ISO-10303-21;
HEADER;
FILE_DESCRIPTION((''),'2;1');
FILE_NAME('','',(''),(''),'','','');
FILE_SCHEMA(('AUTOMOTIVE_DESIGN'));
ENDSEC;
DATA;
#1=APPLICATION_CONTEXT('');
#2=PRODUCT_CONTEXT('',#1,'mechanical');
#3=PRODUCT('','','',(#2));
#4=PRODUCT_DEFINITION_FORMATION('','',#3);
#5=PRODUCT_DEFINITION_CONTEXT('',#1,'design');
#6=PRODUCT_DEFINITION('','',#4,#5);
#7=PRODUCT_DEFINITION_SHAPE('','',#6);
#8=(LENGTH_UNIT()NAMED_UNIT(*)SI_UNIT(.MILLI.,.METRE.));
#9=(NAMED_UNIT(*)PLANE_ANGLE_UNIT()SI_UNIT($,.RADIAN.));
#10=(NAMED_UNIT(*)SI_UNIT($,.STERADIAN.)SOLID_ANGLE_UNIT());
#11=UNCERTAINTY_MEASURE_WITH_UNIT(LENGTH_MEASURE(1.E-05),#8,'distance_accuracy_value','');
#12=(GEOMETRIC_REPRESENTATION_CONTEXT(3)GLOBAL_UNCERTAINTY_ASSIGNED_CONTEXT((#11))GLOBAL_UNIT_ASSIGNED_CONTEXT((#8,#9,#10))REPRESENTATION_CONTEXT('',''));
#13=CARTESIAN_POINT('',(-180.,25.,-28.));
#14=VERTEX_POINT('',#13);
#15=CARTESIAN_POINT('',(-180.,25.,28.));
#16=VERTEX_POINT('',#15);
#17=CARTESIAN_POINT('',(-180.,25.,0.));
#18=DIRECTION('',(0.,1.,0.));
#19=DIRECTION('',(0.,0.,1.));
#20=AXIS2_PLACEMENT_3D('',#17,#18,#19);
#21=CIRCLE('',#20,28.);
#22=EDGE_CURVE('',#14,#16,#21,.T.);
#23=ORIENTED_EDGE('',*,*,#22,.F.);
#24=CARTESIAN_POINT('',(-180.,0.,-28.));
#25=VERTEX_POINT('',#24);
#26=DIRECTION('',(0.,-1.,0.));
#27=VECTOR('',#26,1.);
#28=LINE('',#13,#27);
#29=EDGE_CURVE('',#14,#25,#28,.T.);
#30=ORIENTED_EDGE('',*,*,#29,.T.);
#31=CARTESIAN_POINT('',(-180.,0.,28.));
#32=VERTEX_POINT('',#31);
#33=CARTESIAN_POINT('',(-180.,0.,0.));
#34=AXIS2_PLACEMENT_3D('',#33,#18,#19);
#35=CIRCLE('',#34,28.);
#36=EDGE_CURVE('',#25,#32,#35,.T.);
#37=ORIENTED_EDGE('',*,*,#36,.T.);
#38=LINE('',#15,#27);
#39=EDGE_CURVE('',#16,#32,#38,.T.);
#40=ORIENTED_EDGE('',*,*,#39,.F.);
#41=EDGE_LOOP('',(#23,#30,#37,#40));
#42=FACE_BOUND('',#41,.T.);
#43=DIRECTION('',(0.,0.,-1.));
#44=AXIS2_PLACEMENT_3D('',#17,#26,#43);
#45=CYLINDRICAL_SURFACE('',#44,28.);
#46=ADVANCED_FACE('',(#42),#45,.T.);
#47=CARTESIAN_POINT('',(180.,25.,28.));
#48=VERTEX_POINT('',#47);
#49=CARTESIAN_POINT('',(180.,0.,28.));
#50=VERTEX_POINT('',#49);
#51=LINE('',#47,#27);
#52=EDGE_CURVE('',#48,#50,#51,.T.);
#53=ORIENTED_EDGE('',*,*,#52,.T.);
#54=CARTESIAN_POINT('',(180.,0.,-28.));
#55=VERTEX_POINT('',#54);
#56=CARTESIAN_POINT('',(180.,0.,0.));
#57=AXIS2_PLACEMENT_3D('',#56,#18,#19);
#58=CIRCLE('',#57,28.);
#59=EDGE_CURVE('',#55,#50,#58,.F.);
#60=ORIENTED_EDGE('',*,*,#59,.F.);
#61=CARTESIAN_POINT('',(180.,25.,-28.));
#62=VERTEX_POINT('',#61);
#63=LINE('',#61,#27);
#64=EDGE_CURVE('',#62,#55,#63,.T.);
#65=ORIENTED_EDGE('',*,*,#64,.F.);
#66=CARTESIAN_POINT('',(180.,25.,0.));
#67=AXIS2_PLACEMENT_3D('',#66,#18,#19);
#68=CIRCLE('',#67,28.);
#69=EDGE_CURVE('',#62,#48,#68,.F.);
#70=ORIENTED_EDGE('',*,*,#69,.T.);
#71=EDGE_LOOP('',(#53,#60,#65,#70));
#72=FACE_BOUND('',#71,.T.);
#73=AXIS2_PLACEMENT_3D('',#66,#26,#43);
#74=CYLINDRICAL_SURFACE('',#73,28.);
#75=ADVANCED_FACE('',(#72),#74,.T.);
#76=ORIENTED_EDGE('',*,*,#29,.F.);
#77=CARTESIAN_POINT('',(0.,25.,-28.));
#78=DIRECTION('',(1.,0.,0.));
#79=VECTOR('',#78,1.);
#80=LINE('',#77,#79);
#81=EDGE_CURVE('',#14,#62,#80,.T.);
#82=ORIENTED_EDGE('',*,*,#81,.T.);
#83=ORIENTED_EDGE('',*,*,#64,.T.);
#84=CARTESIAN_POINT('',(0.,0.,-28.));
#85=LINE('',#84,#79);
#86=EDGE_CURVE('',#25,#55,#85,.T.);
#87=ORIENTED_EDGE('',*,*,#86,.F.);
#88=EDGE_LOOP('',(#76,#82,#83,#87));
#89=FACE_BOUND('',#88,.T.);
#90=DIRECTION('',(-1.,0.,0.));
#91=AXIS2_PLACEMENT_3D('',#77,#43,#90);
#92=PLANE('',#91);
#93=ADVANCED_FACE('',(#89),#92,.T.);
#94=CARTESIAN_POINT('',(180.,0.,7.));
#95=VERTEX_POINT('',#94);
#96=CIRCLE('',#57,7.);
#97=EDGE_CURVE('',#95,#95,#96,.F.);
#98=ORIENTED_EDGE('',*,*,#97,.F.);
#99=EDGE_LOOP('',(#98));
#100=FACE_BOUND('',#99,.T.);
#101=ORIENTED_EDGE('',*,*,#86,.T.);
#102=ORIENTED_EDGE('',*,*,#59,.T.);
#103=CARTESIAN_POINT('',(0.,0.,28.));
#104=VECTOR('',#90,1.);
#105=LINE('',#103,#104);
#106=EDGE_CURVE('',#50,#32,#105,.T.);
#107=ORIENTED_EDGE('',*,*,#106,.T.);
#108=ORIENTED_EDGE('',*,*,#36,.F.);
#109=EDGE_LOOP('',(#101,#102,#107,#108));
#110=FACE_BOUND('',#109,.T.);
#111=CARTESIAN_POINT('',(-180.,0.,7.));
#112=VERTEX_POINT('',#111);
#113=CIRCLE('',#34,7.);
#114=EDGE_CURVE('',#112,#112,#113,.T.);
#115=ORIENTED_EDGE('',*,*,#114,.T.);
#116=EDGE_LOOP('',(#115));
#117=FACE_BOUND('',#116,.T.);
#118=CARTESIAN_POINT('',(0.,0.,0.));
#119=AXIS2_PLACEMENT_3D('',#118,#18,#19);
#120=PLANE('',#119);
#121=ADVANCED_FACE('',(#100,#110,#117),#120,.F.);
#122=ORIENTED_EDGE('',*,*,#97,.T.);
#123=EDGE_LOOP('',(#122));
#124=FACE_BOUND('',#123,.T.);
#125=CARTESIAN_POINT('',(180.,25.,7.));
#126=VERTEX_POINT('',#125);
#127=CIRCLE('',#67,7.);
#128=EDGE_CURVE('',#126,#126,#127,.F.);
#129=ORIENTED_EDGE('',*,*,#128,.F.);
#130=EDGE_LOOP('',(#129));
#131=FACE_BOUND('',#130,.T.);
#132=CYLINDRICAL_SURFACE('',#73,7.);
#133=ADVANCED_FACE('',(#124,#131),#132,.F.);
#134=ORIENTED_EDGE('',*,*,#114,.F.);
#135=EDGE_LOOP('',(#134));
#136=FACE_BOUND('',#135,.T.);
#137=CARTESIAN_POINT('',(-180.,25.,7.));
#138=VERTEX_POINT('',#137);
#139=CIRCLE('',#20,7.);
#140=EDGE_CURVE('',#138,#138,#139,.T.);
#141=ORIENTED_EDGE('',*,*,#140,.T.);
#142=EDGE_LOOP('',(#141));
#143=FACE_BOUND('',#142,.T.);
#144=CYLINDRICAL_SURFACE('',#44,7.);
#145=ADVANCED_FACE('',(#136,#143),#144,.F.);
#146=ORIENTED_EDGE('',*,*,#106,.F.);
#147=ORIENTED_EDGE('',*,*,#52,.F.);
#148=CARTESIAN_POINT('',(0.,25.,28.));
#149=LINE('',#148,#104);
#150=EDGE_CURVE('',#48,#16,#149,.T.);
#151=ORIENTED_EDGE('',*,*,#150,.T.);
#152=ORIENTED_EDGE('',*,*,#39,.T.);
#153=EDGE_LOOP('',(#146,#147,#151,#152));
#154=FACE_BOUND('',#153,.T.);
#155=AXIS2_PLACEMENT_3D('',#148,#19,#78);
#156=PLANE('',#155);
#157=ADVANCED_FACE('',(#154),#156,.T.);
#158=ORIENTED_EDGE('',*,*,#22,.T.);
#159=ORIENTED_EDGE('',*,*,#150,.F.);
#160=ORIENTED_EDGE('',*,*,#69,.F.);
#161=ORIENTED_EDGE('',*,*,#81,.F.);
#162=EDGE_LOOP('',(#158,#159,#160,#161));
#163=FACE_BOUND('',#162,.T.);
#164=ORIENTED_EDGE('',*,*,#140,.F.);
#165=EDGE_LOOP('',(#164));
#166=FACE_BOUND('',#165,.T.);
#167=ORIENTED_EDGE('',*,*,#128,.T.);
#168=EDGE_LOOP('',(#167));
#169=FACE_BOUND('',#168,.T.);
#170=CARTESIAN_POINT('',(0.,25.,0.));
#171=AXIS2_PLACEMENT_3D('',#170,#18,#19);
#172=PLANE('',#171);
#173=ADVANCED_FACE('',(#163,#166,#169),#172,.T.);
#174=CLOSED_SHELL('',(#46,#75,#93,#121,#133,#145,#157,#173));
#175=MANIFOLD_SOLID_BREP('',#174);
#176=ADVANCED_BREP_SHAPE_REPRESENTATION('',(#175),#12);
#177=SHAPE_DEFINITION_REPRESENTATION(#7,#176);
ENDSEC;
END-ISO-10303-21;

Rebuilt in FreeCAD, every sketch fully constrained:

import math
import FreeCAD as App
import Part
import Sketcher

V = App.Vector

doc = App.newDocument("Part")
params = doc.addObject("Spreadsheet::Sheet", "Params")
for row, (alias, value) in enumerate([
    ("sketch1_diameter", "14 mm"),
    ("sketch1_radius", "28 mm"),
    ("sketch1_width", "360 mm"),
    ("pad1_length", "25 mm"),
], start=1):
    params.set(f"A{row}", alias)
    params.set(f"B{row}", "=" + value)
    params.setAlias(f"B{row}", alias)

body = doc.addObject("PartDesign::Body", "Body")

# Sketch on XZ plane
sketch1 = body.newObject("Sketcher::SketchObject", "Sketch")
sketch1.AttachmentSupport = (doc.getObject("XZ_Plane"), [""])
sketch1.MapMode = "FlatFace"
sketch1.addGeometry([
    Part.LineSegment(V(180, -28, 0), V(-180, -28, 0)),  # 0
    Part.ArcOfCircle(Part.Circle(V(-180, 0, 0), V(0, 0, 1), 28), math.radians(90), math.radians(270)),  # 1
    Part.LineSegment(V(-180, 28, 0), V(180, 28, 0)),  # 2
    Part.ArcOfCircle(Part.Circle(V(180, 0, 0), V(0, 0, 1), 28), math.radians(-90), math.radians(90)),  # 3
    Part.Circle(V(-180, 0, 0), V(0, 0, 1), 7),  # 4
    Part.Circle(V(180, 0, 0), V(0, 0, 1), 7),  # 5
], False)
sketch1.addConstraint([
    Sketcher.Constraint("Tangent", 0, 2, 1, 2),
    Sketcher.Constraint("Tangent", 1, 1, 2, 1),
    Sketcher.Constraint("Tangent", 2, 2, 3, 2),
    Sketcher.Constraint("Tangent", 3, 1, 0, 1),
    Sketcher.Constraint("Horizontal", 0),
    Sketcher.Constraint("Horizontal", 2),
    Sketcher.Constraint("Coincident", 4, 3, 1, 3),
    Sketcher.Constraint("Coincident", 5, 3, 3, 3),
    Sketcher.Constraint("Equal", 4, 5),
    Sketcher.Constraint("Symmetric", 1, 3, 3, 3, -1, 1),
    Sketcher.Constraint("Diameter", 4, 14.0),
    Sketcher.Constraint("Radius", 1, 28.0),
    Sketcher.Constraint("DistanceX", 0, 2, 0, 1, 360.0),
])
sketch1.setExpression("Constraints[10]", "Params.sketch1_diameter")
sketch1.setExpression("Constraints[11]", "Params.sketch1_radius")
sketch1.setExpression("Constraints[12]", "Params.sketch1_width")
pad1 = body.newObject("PartDesign::Pad", "Pad")
pad1.Profile = sketch1
pad1.setExpression("Length", "Params.pad1_length")
pad1.Reversed = True

doc.recompute()
